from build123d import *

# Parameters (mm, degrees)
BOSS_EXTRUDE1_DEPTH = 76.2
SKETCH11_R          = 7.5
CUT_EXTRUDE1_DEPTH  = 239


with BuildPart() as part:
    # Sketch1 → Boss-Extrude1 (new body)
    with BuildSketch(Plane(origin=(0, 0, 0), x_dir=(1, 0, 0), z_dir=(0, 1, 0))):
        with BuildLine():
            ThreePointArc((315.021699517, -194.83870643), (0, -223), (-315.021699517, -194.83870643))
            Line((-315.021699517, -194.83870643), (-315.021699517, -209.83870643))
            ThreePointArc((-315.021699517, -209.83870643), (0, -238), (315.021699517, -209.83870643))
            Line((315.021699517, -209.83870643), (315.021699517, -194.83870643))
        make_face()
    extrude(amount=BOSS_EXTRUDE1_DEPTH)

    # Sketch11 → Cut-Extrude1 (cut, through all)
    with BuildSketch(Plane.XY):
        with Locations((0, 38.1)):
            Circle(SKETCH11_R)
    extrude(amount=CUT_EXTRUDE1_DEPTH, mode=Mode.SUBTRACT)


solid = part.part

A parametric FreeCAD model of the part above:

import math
import FreeCAD as App
import Part
import Sketcher

V = App.Vector
Q = App.Units.Quantity

doc = App.newDocument("Part")
body = doc.addObject("PartDesign::Body", "Body")

# Sketch on XZ plane
sketch1 = body.newObject("Sketcher::SketchObject", "Sketch")
sketch1.AttachmentSupport = (doc.getObject("XZ_Plane"), [""])
sketch1.MapMode = "FlatFace"
sketch1.addGeometry([
    Part.ArcOfCircle(Part.Circle(V(0, -1553, 0), V(0, 0, 1), 1776), math.radians(80), math.radians(100)),
    Part.LineSegment(V(-315, 195, 0), V(-315, 210, 0)),
    Part.ArcOfCircle(Part.Circle(V(0, -1538, 0), V(0, 0, 1), 1776), math.radians(80), math.radians(100)),
    Part.LineSegment(V(315, 210, 0), V(315, 195, 0)),
], False)
sketch1.addConstraint([
    Sketcher.Constraint("Coincident", 0, 2, 1, 1),
    Sketcher.Constraint("Coincident", 1, 2, 2, 2),
    Sketcher.Constraint("Coincident", 2, 1, 3, 1),
    Sketcher.Constraint("Coincident", 3, 2, 0, 1),
    Sketcher.Constraint("Vertical", 1),
    Sketcher.Constraint("Vertical", 3),
    Sketcher.Constraint("Equal", 0, 2),
    Sketcher.Constraint("PointOnObject", 0, 3, -2),
    Sketcher.Constraint("PointOnObject", 2, 3, -2),
    Sketcher.Constraint("DistanceY", 1, 1, 1, 2, Q("15 mm")),
    Sketcher.Constraint("DistanceY", 3, 2, 1, 2, Q("15 mm")),
    Sketcher.Constraint("Radius", 0, Q("1776.049977 mm")),
    Sketcher.Constraint("DistanceX", 1, 2, -1, 1, Q("315.0217 mm")),
    Sketcher.Constraint("DistanceY", 0, 3, -1, 1, Q("1553.049977 mm")),
])
pad1 = body.newObject("PartDesign::Pad", "Pad")
pad1.Profile = sketch1
pad1.Length = 76.2
pad1.Reversed = True

# Sketch on XY plane
sketch2 = body.newObject("Sketcher::SketchObject", "Sketch001")
sketch2.AttachmentSupport = (doc.getObject("XY_Plane"), [""])
sketch2.MapMode = "FlatFace"
sketch2.addGeometry(Part.Circle(V(0, 38, 0), V(0, 0, 1), 8), False)
sketch2.addConstraint([
    Sketcher.Constraint("PointOnObject", 0, 3, -2),
    Sketcher.Constraint("Diameter", 0, Q("15 mm")),
    Sketcher.Constraint("DistanceY", -1, 1, 0, 3, Q("38.1 mm")),
])
pocket1 = body.newObject("PartDesign::Pocket", "Pocket")
pocket1.Profile = sketch2
pocket1.Type = "ThroughAll"
pocket1.Reversed = True

doc.recompute()
